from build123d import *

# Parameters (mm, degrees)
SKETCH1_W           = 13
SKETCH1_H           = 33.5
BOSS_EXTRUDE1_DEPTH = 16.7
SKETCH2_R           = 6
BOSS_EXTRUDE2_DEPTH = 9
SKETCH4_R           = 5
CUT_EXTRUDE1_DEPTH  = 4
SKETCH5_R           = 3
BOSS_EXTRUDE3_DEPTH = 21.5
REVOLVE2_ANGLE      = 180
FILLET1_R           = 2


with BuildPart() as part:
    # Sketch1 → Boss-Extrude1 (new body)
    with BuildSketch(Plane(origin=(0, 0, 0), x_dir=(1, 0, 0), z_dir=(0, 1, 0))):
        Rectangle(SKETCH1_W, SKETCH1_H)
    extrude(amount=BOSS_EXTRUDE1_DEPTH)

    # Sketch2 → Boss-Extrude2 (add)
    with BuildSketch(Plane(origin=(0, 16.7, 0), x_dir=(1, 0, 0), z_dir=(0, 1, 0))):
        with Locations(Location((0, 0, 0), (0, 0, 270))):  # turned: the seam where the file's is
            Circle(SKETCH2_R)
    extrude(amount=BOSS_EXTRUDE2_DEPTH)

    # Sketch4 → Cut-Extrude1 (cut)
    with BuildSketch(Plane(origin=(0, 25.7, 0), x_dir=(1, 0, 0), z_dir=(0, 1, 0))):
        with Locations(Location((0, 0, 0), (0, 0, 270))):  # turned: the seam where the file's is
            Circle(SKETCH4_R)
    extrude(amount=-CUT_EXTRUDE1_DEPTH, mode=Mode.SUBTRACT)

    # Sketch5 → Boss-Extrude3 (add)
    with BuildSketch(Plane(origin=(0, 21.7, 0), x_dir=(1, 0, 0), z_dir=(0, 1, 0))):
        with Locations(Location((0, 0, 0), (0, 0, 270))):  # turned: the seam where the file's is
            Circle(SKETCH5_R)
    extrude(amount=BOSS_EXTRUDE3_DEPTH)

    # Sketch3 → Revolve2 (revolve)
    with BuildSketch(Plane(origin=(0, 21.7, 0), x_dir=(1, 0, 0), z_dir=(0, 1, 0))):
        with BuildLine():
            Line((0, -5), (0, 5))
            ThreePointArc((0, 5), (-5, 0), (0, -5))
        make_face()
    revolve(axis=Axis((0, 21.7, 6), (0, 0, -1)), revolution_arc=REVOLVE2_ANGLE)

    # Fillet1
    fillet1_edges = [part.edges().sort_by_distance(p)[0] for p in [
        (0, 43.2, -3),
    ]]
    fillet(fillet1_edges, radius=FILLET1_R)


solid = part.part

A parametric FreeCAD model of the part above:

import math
import FreeCAD as App
import Part
import Sketcher


def edges_at(feature, points):
    """Names of the edges that pass closest to the given points."""
    edges = feature.Shape.Edges
    near = lambda p: min(range(len(edges)), key=lambda i: edges[i].distToShape(Part.Vertex(*p))[0])
    return sorted({f"Edge{near(p) + 1}" for p in points})

doc = App.newDocument("Part")
params = doc.addObject("Spreadsheet::Sheet", "Params")
for row, (alias, value) in enumerate([
    ("sketch1_width", "13 mm"),
    ("sketch1_height", "33.5 mm"),
    ("pad1_length", "16.7 mm"),
    ("sketch2_diameter", "12 mm"),
    ("pad2_length", "9 mm"),
    ("sketch3_diameter", "10 mm"),
    ("pocket1_length", "4 mm"),
    ("sketch4_diameter", "6 mm"),
    ("pad3_length", "21.5 mm"),
    ("sketch5_radius", "5 mm"),
    ("revolution_angle", "180 deg"),
    ("fillet_radius", "2 mm"),
], start=1):
    params.set(f"A{row}", alias)
    params.set(f"B{row}", "=" + value)
    params.setAlias(f"B{row}", alias)

body = doc.addObject("PartDesign::Body", "Body")

# Sketch on XZ plane
sketch1 = doc.addObject("Sketcher::SketchObject", "Sketch")
body.addObject(sketch1)
sketch1.AttachmentSupport = (doc.XZ_Plane, [""])
sketch1.MapMode = "FlatFace"
sketch1.addGeometry(Part.LineSegment(App.Vector(-6, -17, 0), App.Vector(-6, 17, 0)), False)
sketch1.addGeometry(Part.LineSegment(App.Vector(-6, 17, 0), App.Vector(6, 17, 0)), False)
sketch1.addGeometry(Part.LineSegment(App.Vector(6, 17, 0), App.Vector(6, -17, 0)), False)
sketch1.addGeometry(Part.LineSegment(App.Vector(6, -17, 0), App.Vector(-6, -17, 0)), False)
sketch1.addConstraint(Sketcher.Constraint("Coincident", 0, 2, 1, 1))
sketch1.addConstraint(Sketcher.Constraint("Coincident", 1, 2, 2, 1))
sketch1.addConstraint(Sketcher.Constraint("Coincident", 2, 2, 3, 1))
sketch1.addConstraint(Sketcher.Constraint("Coincident", 3, 2, 0, 1))
sketch1.addConstraint(Sketcher.Constraint("Vertical", 0))
sketch1.addConstraint(Sketcher.Constraint("Horizontal", 1))
sketch1.addConstraint(Sketcher.Constraint("Vertical", 2))
sketch1.addConstraint(Sketcher.Constraint("Horizontal", 3))
sketch1.addConstraint(Sketcher.Constraint("Symmetric", 0, 2, 2, 2, -1, 1))
sketch1.addConstraint(Sketcher.Constraint("DistanceX", 1, 1, 1, 2, 13.0))
sketch1.addConstraint(Sketcher.Constraint("DistanceY", 0, 1, 0, 2, 33.5))
sketch1.setExpression("Constraints[9]", "Params.sketch1_width")
sketch1.setExpression("Constraints[10]", "Params.sketch1_height")
pad1 = doc.addObject("PartDesign::Pad", "Pad")
body.addObject(pad1)
pad1.Profile = sketch1
pad1.setExpression("Length", "Params.pad1_length")
pad1.Reversed = True

# Sketch on XZ plane
sketch2 = doc.addObject("Sketcher::SketchObject", "Sketch001")
body.addObject(sketch2)
sketch2.AttachmentSupport = (doc.XZ_Plane, [""])
sketch2.MapMode = "FlatFace"
sketch2.AttachmentOffset = App.Placement(App.Vector(0, 0, -16.7), App.Rotation())
sketch2.addGeometry(Part.Circle(App.Vector(0, 0, 0), App.Vector(0, 0, 1), 6), False)
sketch2.addConstraint(Sketcher.Constraint("Coincident", 0, 3, -1, 1))
sketch2.addConstraint(Sketcher.Constraint("Diameter", 0, 12.0))
sketch2.setExpression("Constraints[1]", "Params.sketch2_diameter")
pad2 = doc.addObject("PartDesign::Pad", "Pad001")
body.addObject(pad2)
pad2.Profile = sketch2
pad2.setExpression("Length", "Params.pad2_length")
pad2.Reversed = True

# Sketch on XZ plane
sketch3 = doc.addObject("Sketcher::SketchObject", "Sketch002")
body.addObject(sketch3)
sketch3.AttachmentSupport = (doc.XZ_Plane, [""])
sketch3.MapMode = "FlatFace"
sketch3.AttachmentOffset = App.Placement(App.Vector(0, 0, -25.7), App.Rotation())
sketch3.addGeometry(Part.Circle(App.Vector(0, 0, 0), App.Vector(0, 0, 1), 5), False)
sketch3.addConstraint(Sketcher.Constraint("Coincident", 0, 3, -1, 1))
sketch3.addConstraint(Sketcher.Constraint("Diameter", 0, 10.0))
sketch3.setExpression("Constraints[1]", "Params.sketch3_diameter")
pocket1 = doc.addObject("PartDesign::Pocket", "Pocket")
body.addObject(pocket1)
pocket1.Profile = sketch3
pocket1.setExpression("Length", "Params.pocket1_length")
pocket1.Reversed = True

# Sketch on XZ plane
sketch4 = doc.addObject("Sketcher::SketchObject", "Sketch003")
body.addObject(sketch4)
sketch4.AttachmentSupport = (doc.XZ_Plane, [""])
sketch4.MapMode = "FlatFace"
sketch4.AttachmentOffset = App.Placement(App.Vector(0, 0, -21.7), App.Rotation())
sketch4.addGeometry(Part.Circle(App.Vector(0, 0, 0), App.Vector(0, 0, 1), 3), False)
sketch4.addConstraint(Sketcher.Constraint("Coincident", 0, 3, -1, 1))
sketch4.addConstraint(Sketcher.Constraint("Diameter", 0, 6.0))
sketch4.setExpression("Constraints[1]", "Params.sketch4_diameter")
pad3 = doc.addObject("PartDesign::Pad", "Pad002")
body.addObject(pad3)
pad3.Profile = sketch4
pad3.setExpression("Length", "Params.pad3_length")
pad3.Reversed = True

# Sketch on XZ plane
sketch5 = doc.addObject("Sketcher::SketchObject", "Sketch004")
body.addObject(sketch5)
sketch5.AttachmentSupport = (doc.XZ_Plane, [""])
sketch5.MapMode = "FlatFace"
sketch5.AttachmentOffset = App.Placement(App.Vector(0, 0, -21.7), App.Rotation())
sketch5.addGeometry(Part.LineSegment(App.Vector(0, 5, 0), App.Vector(0, -5, 0)), False)
sketch5.addGeometry(Part.ArcOfCircle(Part.Circle(App.Vector(0, 0, 0), App.Vector(0, 0, 1), 5), math.radians(90), math.radians(270)), False)
sketch5.addConstraint(Sketcher.Constraint("Coincident", 0, 1, 1, 1))
sketch5.addConstraint(Sketcher.Constraint("Coincident", 1, 2, 0, 2))
sketch5.addConstraint(Sketcher.Constraint("Vertical", 0))
sketch5.addConstraint(Sketcher.Constraint("Coincident", 1, 3, -1, 1))
sketch5.addConstraint(Sketcher.Constraint("PointOnObject", 0, 1, -2))
sketch5.addConstraint(Sketcher.Constraint("Radius", 1, 5.0))
sketch5.setExpression("Constraints[5]", "Params.sketch5_radius")
revolution = doc.addObject("PartDesign::Revolution", "Revolution")
body.addObject(revolution)
revolution.Profile = sketch5
revolution.ReferenceAxis = (sketch5, ["V_Axis"])
revolution.setExpression("Angle", "Params.revolution_angle")
revolution.Reversed = True
doc.recompute()

fillet = doc.addObject("PartDesign::Fillet", "Fillet")
body.addObject(fillet)
fillet.Base = (revolution, edges_at(revolution, [(0, 43.2, -3)]))
fillet.setExpression("Radius", "Params.fillet_radius")

doc.recompute()
